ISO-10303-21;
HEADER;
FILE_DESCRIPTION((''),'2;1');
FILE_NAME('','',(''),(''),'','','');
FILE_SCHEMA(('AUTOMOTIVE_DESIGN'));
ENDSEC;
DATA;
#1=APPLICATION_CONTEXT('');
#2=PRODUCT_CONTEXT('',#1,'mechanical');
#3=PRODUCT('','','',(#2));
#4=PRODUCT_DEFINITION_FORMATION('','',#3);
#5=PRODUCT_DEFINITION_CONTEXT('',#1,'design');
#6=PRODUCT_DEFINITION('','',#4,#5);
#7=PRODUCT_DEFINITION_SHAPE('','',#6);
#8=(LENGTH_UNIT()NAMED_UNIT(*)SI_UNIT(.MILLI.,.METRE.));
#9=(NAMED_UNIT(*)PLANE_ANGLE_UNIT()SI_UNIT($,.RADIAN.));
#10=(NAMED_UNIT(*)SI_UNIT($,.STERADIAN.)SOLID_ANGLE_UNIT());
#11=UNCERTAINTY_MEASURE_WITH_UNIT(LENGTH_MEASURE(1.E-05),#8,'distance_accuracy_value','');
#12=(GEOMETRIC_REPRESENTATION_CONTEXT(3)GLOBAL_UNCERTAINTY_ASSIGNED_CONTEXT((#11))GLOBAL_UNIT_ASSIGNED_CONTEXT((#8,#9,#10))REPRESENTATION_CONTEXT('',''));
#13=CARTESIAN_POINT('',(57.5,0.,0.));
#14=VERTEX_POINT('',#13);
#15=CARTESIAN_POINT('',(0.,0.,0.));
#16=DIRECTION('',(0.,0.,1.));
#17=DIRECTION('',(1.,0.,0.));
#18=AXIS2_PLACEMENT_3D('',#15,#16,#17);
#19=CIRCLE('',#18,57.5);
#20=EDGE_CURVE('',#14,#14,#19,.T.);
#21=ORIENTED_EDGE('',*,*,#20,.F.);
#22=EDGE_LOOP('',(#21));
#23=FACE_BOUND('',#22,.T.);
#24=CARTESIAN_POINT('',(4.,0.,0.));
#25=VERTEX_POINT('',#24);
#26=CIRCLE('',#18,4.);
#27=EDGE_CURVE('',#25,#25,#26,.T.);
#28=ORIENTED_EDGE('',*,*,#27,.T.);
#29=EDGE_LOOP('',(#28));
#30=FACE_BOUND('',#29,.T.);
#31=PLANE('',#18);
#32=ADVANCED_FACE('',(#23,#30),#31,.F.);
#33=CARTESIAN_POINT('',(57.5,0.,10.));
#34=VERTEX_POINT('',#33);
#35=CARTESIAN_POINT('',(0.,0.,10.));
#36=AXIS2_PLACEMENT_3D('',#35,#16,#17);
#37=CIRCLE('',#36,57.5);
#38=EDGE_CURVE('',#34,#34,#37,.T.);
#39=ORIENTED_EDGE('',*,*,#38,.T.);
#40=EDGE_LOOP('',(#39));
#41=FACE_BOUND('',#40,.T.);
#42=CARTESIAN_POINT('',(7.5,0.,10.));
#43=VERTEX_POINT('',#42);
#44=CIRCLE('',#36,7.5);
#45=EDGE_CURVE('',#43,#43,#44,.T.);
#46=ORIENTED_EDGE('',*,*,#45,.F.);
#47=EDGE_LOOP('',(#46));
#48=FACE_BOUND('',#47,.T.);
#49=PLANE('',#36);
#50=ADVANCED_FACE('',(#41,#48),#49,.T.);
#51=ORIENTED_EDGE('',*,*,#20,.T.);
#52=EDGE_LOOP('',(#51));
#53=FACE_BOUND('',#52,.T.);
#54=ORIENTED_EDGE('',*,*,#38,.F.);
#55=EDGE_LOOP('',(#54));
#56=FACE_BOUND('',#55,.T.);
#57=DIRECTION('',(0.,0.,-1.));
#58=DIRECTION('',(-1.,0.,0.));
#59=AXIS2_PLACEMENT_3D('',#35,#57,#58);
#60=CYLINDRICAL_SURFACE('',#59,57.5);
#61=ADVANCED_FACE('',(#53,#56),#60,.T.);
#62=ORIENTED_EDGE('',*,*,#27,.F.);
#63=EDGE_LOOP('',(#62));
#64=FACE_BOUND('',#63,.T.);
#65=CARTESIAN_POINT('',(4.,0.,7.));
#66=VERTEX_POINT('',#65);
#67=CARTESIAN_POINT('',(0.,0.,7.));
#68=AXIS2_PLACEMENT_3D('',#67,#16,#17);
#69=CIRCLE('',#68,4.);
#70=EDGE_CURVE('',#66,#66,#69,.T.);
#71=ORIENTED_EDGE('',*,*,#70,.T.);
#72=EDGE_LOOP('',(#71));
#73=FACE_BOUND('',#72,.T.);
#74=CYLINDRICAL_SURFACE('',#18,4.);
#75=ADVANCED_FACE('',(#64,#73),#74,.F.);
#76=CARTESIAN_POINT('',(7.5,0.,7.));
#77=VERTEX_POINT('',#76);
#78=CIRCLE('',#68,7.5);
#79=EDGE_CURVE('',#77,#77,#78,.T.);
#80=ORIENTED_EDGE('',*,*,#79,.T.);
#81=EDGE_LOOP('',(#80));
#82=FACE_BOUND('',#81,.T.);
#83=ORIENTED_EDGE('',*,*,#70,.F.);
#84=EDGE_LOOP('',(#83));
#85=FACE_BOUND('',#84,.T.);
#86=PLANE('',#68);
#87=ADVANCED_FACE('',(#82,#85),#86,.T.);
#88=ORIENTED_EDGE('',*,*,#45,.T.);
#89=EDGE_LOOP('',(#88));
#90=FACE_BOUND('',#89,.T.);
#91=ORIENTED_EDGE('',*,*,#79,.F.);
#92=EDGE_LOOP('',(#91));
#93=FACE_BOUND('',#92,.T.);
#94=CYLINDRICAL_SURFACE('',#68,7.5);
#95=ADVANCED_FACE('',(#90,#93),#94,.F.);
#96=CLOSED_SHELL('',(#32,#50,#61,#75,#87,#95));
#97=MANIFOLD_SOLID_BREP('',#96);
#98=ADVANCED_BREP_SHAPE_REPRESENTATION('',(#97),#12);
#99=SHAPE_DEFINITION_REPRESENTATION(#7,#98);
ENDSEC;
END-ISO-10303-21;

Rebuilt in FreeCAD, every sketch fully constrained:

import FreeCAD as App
import Part
import Sketcher
Q = App.Units.Quantity

doc = App.newDocument("Part")
params = doc.addObject("Spreadsheet::Sheet", "Params")
for row, (alias, value) in enumerate([
    ("sketch1_diameter", "115 mm"),
    ("pad1_length", "10 mm"),
    ("sketch2_diameter", "15 mm"),
    ("sketch2_diameter2", "8 mm"),
    ("pocket1_length", "3 mm"),
    ("sketch3_diameter", "8 mm"),
], start=1):
    params.set(f"A{row}", alias)
    params.set(f"B{row}", "=" + value)
    params.setAlias(f"B{row}", alias)

body = doc.addObject("PartDesign::Body", "Body")

# Sketch on XY plane
sketch1 = body.newObject("Sketcher::SketchObject", "Sketch")
sketch1.AttachmentSupport = (doc.getObject("XY_Plane"), [""])
sketch1.MapMode = "FlatFace"
sketch1.addGeometry(Part.Circle(App.Vector(0, 0, 0), App.Vector(0, 0, 1), 58), False)
sketch1.addConstraint([
    Sketcher.Constraint("Coincident", 0, 3, -1, 1),
    Sketcher.Constraint("Diameter", 0, Q("115 mm")),
])
sketch1.setExpression("Constraints[1]", "Params.sketch1_diameter")
pad1 = body.newObject("PartDesign::Pad", "Pad")
pad1.Profile = sketch1
pad1.setExpression("Length", "Params.pad1_length")

# Sketch on XY plane
sketch2 = body.newObject("Sketcher::SketchObject", "Sketch001")
sketch2.AttachmentSupport = (doc.getObject("XY_Plane"), [""])
sketch2.MapMode = "FlatFace"
sketch2.AttachmentOffset = App.Placement(App.Vector(0, 0, 10), App.Rotation())
sketch2.addGeometry([
    Part.Circle(App.Vector(0, 0, 0), App.Vector(0, 0, 1), 7.5),
    Part.Circle(App.Vector(0, 0, 0), App.Vector(0, 0, 1), 4),
], False)
sketch2.addConstraint([
    Sketcher.Constraint("Coincident", 0, 3, -1, 1),
    Sketcher.Constraint("Coincident", 1, 3, -1, 1),
    Sketcher.Constraint("Diameter", 0, Q("15 mm")),
    Sketcher.Constraint("Diameter", 1, Q("8 mm")),
])
sketch2.setExpression("Constraints[2]", "Params.sketch2_diameter")
sketch2.setExpression("Constraints[3]", "Params.sketch2_diameter2")
pocket1 = body.newObject("PartDesign::Pocket", "Pocket")
pocket1.Profile = sketch2
pocket1.setExpression("Length", "Params.pocket1_length")

# Sketch on XY plane
sketch3 = body.newObject("Sketcher::SketchObject", "Sketch002")
sketch3.AttachmentSupport = (doc.getObject("XY_Plane"), [""])
sketch3.MapMode = "FlatFace"
sketch3.AttachmentOffset = App.Placement(App.Vector(0, 0, 10), App.Rotation())
sketch3.addGeometry(Part.Circle(App.Vector(0, 0, 0), App.Vector(0, 0, 1), 4), False)
sketch3.addConstraint([
    Sketcher.Constraint("Coincident", 0, 3, -1, 1),
    Sketcher.Constraint("Diameter", 0, Q("8 mm")),
])
sketch3.setExpression("Constraints[1]", "Params.sketch3_diameter")
pocket2 = body.newObject("PartDesign::Pocket", "Pocket001")
pocket2.Profile = sketch3
pocket2.Type = "ThroughAll"

doc.recompute()
